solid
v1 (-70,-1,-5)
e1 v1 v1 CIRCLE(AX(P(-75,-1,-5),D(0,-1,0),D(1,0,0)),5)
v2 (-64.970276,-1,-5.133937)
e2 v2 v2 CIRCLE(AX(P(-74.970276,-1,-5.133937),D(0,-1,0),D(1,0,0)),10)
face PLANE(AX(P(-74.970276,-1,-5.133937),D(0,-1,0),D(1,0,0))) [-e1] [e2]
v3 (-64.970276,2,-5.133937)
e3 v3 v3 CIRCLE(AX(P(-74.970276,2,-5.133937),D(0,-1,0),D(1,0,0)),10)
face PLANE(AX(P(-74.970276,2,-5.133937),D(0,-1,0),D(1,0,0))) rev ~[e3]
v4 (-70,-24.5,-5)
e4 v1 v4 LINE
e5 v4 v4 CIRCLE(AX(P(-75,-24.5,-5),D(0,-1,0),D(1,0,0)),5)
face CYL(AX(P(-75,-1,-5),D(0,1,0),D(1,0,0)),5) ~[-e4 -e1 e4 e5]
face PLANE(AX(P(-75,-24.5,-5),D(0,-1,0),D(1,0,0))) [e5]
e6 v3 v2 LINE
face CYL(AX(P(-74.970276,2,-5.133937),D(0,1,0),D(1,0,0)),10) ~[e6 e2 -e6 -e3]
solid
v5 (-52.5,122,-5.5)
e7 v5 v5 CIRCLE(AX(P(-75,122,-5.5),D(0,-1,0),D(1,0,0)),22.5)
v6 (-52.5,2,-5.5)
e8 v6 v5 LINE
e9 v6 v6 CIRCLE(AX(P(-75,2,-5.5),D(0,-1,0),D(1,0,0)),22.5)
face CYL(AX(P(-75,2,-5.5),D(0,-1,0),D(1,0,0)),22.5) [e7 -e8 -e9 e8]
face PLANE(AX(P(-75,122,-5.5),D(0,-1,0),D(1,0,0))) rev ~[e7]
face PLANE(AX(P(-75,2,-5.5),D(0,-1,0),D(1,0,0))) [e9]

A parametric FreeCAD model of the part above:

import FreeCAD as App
import Part
import Sketcher

V = App.Vector

doc = App.newDocument("Part")
params = doc.addObject("Spreadsheet::Sheet", "Params")
for row, (alias, value) in enumerate([
    ("sketch1_diameter", "45 mm"),
    ("pad1_length", "120 mm"),
    ("sketch2_diameter", "10 mm"),
    ("pad2_length", "23.5 mm"),
    ("sketch3_diameter", "20 mm"),
    ("pad3_length", "3 mm"),
], start=1):
    params.set(f"A{row}", alias)
    params.set(f"B{row}", "=" + value)
    params.setAlias(f"B{row}", alias)

body = doc.addObject("PartDesign::Body", "Body")

# Sketch on XZ plane
sketch1 = body.newObject("Sketcher::SketchObject", "Sketch")
sketch1.AttachmentSupport = (doc.getObject("XZ_Plane"), [""])
sketch1.MapMode = "FlatFace"
sketch1.AttachmentOffset = App.Placement(V(0, 0, -2), App.Rotation())
sketch1.addGeometry(Part.Circle(V(-75, -6, 0), V(0, 0, 1), 22), False)
sketch1.addConstraint([
    Sketcher.Constraint("Diameter", 0, 45.0),
    Sketcher.Constraint("DistanceX", 0, 3, -1, 1, 75.0),
    Sketcher.Constraint("DistanceY", 0, 3, -1, 1, 5.5),
])
sketch1.setExpression("Constraints[0]", "Params.sketch1_diameter")
pad1 = body.newObject("PartDesign::Pad", "Pad")
pad1.Profile = sketch1
pad1.setExpression("Length", "Params.pad1_length")
pad1.Reversed = True
body2 = doc.addObject("PartDesign::Body", "Body001")

# Sketch on XZ plane
sketch2 = body2.newObject("Sketcher::SketchObject", "Sketch001")
sketch2.AttachmentSupport = (doc.getObject("XZ_Plane001"), [""])
sketch2.MapMode = "FlatFace"
sketch2.AttachmentOffset = App.Placement(V(0, 0, 1), App.Rotation())
sketch2.addGeometry(Part.Circle(V(-75, -5, 0), V(0, 0, 1), 5), False)
sketch2.addConstraint([
    Sketcher.Constraint("Diameter", 0, 10.0),
    Sketcher.Constraint("DistanceX", 0, 3, -1, 1, 75.0),
    Sketcher.Constraint("DistanceY", 0, 3, -1, 1, 5.0),
])
sketch2.setExpression("Constraints[0]", "Params.sketch2_diameter")
pad2 = body2.newObject("PartDesign::Pad", "Pad001")
pad2.Profile = sketch2
pad2.setExpression("Length", "Params.pad2_length")

# Sketch on XZ plane
sketch3 = body2.newObject("Sketcher::SketchObject", "Sketch002")
sketch3.AttachmentSupport = (doc.getObject("XZ_Plane001"), [""])
sketch3.MapMode = "FlatFace"
sketch3.AttachmentOffset = App.Placement(V(0, 0, -2), App.Rotation())
sketch3.addGeometry(Part.Circle(V(-75, -5, 0), V(0, 0, 1), 10), False)
sketch3.addConstraint([
    Sketcher.Constraint("Diameter", 0, 20.0),
    Sketcher.Constraint("DistanceX", 0, 3, -1, 1, 74.970276),
    Sketcher.Constraint("DistanceY", 0, 3, -1, 1, 5.133937),
])
sketch3.setExpression("Constraints[0]", "Params.sketch3_diameter")
pad3 = body2.newObject("PartDesign::Pad", "Pad002")
pad3.Profile = sketch3
pad3.setExpression("Length", "Params.pad3_length")

doc.recompute()
